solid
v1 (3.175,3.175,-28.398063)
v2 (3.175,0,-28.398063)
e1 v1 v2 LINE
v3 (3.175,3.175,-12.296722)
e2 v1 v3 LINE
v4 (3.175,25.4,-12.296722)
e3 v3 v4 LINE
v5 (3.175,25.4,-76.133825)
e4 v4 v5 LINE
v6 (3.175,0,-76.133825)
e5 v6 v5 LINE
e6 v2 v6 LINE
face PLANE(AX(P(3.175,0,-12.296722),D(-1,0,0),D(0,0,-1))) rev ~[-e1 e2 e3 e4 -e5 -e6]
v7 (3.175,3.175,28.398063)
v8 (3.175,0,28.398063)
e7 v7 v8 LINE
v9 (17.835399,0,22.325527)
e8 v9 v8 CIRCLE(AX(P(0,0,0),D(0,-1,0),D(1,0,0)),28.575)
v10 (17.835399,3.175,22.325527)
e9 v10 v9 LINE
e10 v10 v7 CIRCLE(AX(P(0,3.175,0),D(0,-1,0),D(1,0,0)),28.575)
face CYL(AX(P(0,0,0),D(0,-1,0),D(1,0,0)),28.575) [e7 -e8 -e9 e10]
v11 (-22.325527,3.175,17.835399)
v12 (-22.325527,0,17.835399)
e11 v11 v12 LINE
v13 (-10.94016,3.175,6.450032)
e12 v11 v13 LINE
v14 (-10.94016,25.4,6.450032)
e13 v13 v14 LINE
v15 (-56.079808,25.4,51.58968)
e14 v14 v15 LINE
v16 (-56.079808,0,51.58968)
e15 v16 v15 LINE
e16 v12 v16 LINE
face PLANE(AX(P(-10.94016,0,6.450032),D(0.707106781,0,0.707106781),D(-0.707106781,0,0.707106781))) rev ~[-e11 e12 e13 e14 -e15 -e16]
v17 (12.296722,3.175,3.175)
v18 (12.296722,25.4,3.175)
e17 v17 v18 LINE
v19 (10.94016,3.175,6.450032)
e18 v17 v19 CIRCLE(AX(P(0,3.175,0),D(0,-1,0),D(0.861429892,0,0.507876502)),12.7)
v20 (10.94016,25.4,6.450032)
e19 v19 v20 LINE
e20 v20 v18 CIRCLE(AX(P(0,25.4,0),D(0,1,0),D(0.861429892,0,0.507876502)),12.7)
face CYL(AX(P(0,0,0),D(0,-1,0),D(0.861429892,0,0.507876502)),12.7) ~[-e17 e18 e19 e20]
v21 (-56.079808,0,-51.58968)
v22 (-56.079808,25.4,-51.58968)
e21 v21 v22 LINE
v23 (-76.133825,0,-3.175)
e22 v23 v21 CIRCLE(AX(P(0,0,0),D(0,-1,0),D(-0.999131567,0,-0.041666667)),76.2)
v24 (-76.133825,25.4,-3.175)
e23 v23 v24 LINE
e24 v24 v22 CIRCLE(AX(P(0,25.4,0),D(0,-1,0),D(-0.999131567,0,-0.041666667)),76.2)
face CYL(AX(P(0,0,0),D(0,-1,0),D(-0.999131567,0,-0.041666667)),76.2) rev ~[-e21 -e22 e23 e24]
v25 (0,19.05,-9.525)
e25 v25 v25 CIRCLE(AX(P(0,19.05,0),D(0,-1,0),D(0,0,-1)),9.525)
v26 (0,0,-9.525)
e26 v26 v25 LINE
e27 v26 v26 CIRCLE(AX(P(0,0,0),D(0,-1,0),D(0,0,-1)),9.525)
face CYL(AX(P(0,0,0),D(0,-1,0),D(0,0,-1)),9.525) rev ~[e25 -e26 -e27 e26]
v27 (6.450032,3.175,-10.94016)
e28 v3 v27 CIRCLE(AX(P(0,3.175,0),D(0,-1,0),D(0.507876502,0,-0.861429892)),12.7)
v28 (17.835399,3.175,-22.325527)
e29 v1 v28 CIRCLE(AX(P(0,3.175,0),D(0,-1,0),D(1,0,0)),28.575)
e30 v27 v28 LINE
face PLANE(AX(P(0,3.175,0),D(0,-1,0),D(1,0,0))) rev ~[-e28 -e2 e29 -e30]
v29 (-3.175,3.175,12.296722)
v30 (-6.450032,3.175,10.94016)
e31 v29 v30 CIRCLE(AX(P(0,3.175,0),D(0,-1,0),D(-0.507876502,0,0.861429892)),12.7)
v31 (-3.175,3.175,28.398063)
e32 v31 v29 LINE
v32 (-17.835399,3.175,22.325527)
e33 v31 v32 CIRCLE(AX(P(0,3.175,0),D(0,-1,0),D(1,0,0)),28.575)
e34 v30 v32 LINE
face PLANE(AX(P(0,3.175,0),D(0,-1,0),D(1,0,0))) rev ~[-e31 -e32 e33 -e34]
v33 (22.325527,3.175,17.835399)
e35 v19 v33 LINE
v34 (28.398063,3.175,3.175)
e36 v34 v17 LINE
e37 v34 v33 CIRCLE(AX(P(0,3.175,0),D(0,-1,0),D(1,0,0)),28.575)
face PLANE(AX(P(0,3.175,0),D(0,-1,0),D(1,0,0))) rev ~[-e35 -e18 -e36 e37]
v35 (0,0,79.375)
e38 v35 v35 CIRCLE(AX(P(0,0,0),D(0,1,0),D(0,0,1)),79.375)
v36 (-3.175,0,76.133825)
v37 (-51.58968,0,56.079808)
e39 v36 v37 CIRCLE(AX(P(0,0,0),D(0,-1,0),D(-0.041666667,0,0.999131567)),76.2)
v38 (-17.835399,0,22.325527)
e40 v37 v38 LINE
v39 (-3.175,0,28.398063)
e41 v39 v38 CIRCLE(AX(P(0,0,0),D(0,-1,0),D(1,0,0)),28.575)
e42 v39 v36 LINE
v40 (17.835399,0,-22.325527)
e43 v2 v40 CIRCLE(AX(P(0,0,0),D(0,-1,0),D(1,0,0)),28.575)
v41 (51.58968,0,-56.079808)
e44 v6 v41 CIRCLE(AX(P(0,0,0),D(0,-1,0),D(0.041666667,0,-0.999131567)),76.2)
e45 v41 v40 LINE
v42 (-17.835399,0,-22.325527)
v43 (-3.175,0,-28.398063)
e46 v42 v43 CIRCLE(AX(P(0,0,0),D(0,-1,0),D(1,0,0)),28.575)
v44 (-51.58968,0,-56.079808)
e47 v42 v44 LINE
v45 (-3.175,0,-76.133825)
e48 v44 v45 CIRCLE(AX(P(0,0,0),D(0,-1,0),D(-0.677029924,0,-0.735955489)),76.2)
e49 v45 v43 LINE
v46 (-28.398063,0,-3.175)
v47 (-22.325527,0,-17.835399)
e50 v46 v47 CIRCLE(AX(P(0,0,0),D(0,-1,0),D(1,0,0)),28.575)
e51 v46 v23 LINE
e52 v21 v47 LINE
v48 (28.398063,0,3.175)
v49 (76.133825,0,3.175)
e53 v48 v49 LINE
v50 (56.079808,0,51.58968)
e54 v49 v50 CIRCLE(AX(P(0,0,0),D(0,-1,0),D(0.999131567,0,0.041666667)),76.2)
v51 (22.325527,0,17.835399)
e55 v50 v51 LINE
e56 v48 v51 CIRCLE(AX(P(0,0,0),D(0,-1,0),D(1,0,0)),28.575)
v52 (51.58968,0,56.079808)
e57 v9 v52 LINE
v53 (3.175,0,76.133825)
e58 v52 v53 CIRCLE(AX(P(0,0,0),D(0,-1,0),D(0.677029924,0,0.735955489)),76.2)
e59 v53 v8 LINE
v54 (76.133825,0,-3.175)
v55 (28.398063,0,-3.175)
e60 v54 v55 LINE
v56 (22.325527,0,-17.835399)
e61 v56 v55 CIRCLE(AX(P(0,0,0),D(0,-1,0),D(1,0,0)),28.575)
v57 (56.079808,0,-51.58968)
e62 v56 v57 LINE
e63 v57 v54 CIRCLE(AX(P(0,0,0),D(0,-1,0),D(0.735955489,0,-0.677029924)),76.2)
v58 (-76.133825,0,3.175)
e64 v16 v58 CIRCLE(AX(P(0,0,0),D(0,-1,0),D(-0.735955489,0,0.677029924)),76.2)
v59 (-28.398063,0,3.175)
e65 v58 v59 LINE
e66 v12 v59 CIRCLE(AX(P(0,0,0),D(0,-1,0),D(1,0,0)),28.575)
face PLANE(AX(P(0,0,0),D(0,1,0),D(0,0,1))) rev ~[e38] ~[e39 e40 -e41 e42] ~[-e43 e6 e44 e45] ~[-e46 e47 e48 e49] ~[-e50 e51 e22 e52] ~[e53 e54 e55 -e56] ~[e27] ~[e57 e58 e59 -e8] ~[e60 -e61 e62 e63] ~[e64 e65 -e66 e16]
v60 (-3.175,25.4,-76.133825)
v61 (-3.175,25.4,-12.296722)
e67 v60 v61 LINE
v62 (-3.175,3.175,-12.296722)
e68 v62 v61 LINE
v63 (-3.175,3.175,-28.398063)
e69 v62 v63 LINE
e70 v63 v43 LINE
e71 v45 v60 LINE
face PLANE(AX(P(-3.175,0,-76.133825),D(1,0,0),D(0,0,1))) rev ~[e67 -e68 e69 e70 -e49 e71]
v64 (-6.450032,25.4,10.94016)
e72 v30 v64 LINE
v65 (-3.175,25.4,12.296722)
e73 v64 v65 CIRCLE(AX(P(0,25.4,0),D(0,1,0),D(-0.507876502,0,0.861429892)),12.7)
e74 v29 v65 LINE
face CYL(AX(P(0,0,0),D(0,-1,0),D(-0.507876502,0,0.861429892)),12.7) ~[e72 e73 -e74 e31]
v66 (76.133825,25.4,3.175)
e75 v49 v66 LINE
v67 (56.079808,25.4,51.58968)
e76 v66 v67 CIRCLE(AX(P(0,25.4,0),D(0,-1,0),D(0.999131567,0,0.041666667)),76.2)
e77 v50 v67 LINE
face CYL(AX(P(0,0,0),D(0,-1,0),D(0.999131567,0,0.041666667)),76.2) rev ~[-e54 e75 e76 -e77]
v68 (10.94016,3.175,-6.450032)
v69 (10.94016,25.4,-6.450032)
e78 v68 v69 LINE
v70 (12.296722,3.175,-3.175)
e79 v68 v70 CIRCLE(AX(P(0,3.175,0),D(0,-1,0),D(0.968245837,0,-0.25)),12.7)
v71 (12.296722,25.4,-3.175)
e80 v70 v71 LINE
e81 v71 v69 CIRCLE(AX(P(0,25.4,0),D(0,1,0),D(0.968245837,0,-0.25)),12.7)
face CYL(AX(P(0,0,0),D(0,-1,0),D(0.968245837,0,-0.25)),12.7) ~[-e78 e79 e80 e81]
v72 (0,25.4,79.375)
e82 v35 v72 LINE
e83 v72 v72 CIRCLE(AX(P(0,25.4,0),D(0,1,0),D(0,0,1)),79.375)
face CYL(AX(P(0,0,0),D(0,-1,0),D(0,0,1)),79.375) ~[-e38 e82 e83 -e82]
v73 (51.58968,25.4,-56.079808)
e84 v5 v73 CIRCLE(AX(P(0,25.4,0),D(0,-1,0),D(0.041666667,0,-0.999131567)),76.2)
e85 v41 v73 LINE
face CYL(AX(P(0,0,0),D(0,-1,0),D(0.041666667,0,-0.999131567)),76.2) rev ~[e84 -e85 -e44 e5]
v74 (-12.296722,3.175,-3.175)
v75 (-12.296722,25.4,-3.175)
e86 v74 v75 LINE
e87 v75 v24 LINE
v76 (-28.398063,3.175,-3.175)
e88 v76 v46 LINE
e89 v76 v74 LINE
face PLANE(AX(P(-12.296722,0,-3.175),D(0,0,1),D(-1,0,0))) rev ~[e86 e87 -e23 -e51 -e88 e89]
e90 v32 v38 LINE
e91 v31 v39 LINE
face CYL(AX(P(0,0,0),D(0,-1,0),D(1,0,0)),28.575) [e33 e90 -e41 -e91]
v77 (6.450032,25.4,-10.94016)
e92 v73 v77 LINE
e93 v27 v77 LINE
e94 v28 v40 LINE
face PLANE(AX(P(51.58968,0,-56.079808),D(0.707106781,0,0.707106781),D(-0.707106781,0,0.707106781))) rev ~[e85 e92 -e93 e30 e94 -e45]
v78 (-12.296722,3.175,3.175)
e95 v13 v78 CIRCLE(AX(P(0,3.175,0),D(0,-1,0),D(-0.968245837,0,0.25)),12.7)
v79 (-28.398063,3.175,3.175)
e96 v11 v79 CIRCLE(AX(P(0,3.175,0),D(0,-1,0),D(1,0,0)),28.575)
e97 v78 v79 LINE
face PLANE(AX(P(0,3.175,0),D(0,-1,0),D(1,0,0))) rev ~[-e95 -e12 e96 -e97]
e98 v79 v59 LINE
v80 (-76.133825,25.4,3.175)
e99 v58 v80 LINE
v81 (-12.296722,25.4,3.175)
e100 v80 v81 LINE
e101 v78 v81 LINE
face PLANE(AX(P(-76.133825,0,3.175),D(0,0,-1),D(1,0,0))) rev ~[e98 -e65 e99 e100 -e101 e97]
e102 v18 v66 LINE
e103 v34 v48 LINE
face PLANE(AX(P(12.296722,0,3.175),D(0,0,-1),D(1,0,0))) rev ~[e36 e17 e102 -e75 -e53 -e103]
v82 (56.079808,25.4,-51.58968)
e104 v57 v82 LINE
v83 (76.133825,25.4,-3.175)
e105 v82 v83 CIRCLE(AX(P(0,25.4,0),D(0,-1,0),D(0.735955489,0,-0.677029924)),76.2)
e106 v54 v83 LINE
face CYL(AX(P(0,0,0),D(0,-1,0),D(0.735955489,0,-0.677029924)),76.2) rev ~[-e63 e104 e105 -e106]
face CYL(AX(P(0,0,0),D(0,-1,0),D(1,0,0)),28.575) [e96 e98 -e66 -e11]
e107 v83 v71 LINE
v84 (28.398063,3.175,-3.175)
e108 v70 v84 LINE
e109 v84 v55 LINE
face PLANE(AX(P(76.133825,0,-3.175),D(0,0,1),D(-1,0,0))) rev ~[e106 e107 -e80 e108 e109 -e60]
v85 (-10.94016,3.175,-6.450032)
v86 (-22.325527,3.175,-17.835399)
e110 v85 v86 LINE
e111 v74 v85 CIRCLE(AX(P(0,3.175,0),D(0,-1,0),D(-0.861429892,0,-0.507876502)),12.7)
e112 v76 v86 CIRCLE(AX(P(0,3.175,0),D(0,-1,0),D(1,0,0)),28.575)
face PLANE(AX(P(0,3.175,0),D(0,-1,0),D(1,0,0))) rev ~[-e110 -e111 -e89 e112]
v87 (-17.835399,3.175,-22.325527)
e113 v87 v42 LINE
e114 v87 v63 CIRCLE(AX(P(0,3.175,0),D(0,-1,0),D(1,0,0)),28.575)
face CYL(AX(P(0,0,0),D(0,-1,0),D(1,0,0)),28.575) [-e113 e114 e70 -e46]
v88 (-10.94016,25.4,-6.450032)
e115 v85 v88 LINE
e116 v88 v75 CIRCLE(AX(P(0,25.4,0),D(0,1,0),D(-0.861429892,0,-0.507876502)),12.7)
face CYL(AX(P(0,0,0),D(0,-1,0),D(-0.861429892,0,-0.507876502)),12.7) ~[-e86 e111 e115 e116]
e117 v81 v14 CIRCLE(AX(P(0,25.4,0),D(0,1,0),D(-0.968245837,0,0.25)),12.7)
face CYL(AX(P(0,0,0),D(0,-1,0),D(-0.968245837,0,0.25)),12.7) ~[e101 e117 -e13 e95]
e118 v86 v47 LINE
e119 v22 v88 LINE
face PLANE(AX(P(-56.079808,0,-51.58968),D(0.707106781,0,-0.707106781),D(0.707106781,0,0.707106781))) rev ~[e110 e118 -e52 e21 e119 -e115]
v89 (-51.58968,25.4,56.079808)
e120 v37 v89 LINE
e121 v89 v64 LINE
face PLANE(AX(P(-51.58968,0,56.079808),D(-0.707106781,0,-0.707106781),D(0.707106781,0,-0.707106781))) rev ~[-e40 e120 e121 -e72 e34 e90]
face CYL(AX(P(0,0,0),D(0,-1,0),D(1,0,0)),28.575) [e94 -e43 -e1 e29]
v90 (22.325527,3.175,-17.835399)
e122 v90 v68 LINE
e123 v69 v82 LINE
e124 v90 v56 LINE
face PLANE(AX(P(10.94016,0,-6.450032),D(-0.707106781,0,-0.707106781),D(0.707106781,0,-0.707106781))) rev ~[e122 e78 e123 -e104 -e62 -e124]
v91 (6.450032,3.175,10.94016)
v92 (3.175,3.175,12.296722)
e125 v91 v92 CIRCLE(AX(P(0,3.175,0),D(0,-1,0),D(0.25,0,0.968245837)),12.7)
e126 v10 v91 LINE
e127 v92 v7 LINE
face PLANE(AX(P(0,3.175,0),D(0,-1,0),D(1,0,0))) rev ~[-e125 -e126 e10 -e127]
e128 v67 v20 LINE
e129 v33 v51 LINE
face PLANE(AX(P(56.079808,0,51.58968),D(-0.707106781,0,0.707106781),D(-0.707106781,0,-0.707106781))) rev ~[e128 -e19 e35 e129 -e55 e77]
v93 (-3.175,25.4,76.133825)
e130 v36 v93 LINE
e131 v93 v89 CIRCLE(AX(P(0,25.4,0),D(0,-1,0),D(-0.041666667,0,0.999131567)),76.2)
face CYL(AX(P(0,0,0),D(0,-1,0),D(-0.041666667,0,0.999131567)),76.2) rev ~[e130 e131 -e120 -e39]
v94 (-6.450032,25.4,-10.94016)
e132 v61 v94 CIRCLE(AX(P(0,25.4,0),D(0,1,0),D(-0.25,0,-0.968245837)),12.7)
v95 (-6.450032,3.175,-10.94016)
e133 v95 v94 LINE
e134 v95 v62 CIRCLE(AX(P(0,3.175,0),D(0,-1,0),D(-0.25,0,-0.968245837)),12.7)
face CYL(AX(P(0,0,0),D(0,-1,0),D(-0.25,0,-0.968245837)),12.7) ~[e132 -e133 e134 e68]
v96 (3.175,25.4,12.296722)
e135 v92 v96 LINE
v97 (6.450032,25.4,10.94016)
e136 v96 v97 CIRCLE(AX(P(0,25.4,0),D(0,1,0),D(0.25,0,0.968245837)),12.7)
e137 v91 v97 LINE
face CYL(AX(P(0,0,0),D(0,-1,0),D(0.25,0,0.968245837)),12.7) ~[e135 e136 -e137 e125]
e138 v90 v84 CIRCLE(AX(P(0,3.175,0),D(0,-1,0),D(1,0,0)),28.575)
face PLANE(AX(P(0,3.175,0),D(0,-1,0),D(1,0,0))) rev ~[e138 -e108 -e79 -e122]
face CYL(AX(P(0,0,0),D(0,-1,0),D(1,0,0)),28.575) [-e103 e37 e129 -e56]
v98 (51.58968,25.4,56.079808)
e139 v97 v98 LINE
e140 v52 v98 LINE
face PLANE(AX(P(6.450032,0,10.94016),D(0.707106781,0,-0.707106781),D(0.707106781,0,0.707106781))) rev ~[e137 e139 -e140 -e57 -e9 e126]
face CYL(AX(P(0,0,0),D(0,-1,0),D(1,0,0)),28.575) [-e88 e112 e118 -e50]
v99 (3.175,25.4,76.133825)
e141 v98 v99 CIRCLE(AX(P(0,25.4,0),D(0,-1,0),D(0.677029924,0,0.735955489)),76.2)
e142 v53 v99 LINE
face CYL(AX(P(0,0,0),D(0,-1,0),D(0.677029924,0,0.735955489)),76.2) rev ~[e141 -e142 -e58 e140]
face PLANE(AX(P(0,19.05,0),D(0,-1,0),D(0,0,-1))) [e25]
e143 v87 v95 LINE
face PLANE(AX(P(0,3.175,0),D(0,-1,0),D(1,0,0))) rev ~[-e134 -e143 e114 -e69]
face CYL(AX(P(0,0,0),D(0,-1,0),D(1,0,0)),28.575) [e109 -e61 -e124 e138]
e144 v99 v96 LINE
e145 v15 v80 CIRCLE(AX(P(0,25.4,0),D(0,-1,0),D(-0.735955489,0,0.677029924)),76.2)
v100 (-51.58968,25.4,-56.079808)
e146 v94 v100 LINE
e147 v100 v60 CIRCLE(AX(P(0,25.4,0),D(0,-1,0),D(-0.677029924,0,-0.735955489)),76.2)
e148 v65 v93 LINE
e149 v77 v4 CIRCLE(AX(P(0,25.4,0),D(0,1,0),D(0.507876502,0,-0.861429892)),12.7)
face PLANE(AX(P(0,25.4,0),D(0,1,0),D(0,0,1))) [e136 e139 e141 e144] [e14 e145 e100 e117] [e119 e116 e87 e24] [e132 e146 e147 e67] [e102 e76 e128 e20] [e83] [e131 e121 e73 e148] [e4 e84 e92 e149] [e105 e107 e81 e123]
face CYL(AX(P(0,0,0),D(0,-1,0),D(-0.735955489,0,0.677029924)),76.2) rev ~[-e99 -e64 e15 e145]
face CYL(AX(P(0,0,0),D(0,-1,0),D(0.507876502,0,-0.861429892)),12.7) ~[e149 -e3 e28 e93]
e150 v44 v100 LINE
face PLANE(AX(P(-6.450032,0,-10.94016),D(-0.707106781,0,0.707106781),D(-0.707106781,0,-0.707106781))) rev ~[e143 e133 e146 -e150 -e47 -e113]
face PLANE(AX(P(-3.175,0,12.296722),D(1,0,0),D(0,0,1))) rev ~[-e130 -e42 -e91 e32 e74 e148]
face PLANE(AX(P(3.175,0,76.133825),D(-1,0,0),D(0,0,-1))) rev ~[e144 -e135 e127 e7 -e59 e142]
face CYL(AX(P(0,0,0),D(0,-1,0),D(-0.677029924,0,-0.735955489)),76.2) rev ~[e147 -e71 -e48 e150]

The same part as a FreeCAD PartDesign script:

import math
import FreeCAD as App
import Part
import Sketcher
from FreeCAD import Vector
Q = App.Units.Quantity

doc = App.newDocument("Part")
body = doc.addObject("PartDesign::Body", "Body")

sketch1 = body.newObject("Sketcher::SketchObject", "Sketch")
sketch1.AttachmentSupport = (doc.getObject("XZ_Plane"), [""])
sketch1.MapMode = "FlatFace"
sketch1.addGeometry([
    Part.Circle(Vector(0, 0, 0), Vector(0, 0, 1), 79.4),
    Part.ArcOfCircle(Part.Circle(Vector(0, 0, 0), Vector(0, 0, 1), 76.2), math.radians(-178), math.radians(-137)),
    Part.LineSegment(Vector(-56.1, -51.6, 0), Vector(-10.9, -6.5, 0)),
    Part.ArcOfCircle(Part.Circle(Vector(0, 0, 0), Vector(0, 0, 1), 12.7), math.radians(-165.52), math.radians(-149.48)),
    Part.LineSegment(Vector(-12.3, -3.2, 0), Vector(-76.1, -3.2, 0)),
    Part.ArcOfCircle(Part.Circle(Vector(0, 0, 0), Vector(0, 0, 1), 76.2), math.radians(-133), math.radians(-92)),
    Part.LineSegment(Vector(-3.2, -76.1, 0), Vector(-3.2, -12.3, 0)),
    Part.ArcOfCircle(Part.Circle(Vector(0, 0, 0), Vector(0, 0, 1), 12.7), math.radians(-120.52), math.radians(-104.48)),
    Part.LineSegment(Vector(-6.5, -10.9, 0), Vector(-51.6, -56.1, 0)),
    Part.ArcOfCircle(Part.Circle(Vector(0, 0, 0), Vector(0, 0, 1), 76.2), math.radians(137), math.radians(178)),
    Part.LineSegment(Vector(-76.1, 3.2, 0), Vector(-12.3, 3.2, 0)),
    Part.ArcOfCircle(Part.Circle(Vector(0, 0, 0), Vector(0, 0, 1), 12.7), math.radians(149.48), math.radians(165.52)),
    Part.LineSegment(Vector(-10.9, 6.5, 0), Vector(-56.1, 51.6, 0)),
    Part.ArcOfCircle(Part.Circle(Vector(0, 0, 0), Vector(0, 0, 1), 76.2), math.radians(92), math.radians(133)),
    Part.LineSegment(Vector(-51.6, 56.1, 0), Vector(-6.5, 10.9, 0)),
    Part.ArcOfCircle(Part.Circle(Vector(0, 0, 0), Vector(0, 0, 1), 12.7), math.radians(104.48), math.radians(120.52)),
    Part.LineSegment(Vector(-3.2, 12.3, 0), Vector(-3.2, 76.1, 0)),
    Part.ArcOfCircle(Part.Circle(Vector(0, 0, 0), Vector(0, 0, 1), 76.2), math.radians(-88), math.radians(-47)),
    Part.LineSegment(Vector(51.6, -56.1, 0), Vector(6.5, -10.9, 0)),
    Part.ArcOfCircle(Part.Circle(Vector(0, 0, 0), Vector(0, 0, 1), 12.7), math.radians(-75.52), math.radians(-59.48)),
    Part.LineSegment(Vector(3.2, -12.3, 0), Vector(3.2, -76.1, 0)),
    Part.LineSegment(Vector(76.1, -3.2, 0), Vector(12.3, -3.2, 0)),
    Part.ArcOfCircle(Part.Circle(Vector(0, 0, 0), Vector(0, 0, 1), 12.7), math.radians(-30.52), math.radians(-14.48)),
    Part.LineSegment(Vector(10.9, -6.5, 0), Vector(56.1, -51.6, 0)),
    Part.ArcOfCircle(Part.Circle(Vector(0, 0, 0), Vector(0, 0, 1), 76.2), math.radians(-43), math.radians(-2)),
    Part.ArcOfCircle(Part.Circle(Vector(0, 0, 0), Vector(0, 0, 1), 76.2), math.radians(47), math.radians(88)),
    Part.LineSegment(Vector(3.2, 76.1, 0), Vector(3.2, 12.3, 0)),
    Part.ArcOfCircle(Part.Circle(Vector(0, 0, 0), Vector(0, 0, 1), 12.7), math.radians(59.48), math.radians(75.52)),
    Part.LineSegment(Vector(6.5, 10.9, 0), Vector(51.6, 56.1, 0)),
    Part.ArcOfCircle(Part.Circle(Vector(0, 0, 0), Vector(0, 0, 1), 76.2), math.radians(2), math.radians(43)),
    Part.LineSegment(Vector(56.1, 51.6, 0), Vector(10.9, 6.5, 0)),
    Part.ArcOfCircle(Part.Circle(Vector(0, 0, 0), Vector(0, 0, 1), 12.7), math.radians(14.48), math.radians(30.52)),
    Part.LineSegment(Vector(12.3, 3.2, 0), Vector(76.1, 3.2, 0)),
], False)
sketch1.addConstraint([
    Sketcher.Constraint("Coincident", 1, 2, 2, 1),
    Sketcher.Constraint("Coincident", 2, 2, 3, 2),
    Sketcher.Constraint("Coincident", 3, 1, 4, 1),
    Sketcher.Constraint("Coincident", 4, 2, 1, 1),
    Sketcher.Constraint("Coincident", 5, 2, 6, 1),
    Sketcher.Constraint("Coincident", 6, 2, 7, 2),
    Sketcher.Constraint("Coincident", 7, 1, 8, 1),
    Sketcher.Constraint("Coincident", 8, 2, 5, 1),
    Sketcher.Constraint("Coincident", 9, 2, 10, 1),
    Sketcher.Constraint("Coincident", 10, 2, 11, 2),
    Sketcher.Constraint("Coincident", 11, 1, 12, 1),
    Sketcher.Constraint("Coincident", 12, 2, 9, 1),
    Sketcher.Constraint("Coincident", 13, 2, 14, 1),
    Sketcher.Constraint("Coincident", 14, 2, 15, 2),
    Sketcher.Constraint("Coincident", 15, 1, 16, 1),
    Sketcher.Constraint("Coincident", 16, 2, 13, 1),
    Sketcher.Constraint("Coincident", 17, 2, 18, 1),
    Sketcher.Constraint("Coincident", 18, 2, 19, 2),
    Sketcher.Constraint("Coincident", 19, 1, 20, 1),
    Sketcher.Constraint("Coincident", 20, 2, 17, 1),
    Sketcher.Constraint("Coincident", 21, 2, 22, 2),
    Sketcher.Constraint("Coincident", 22, 1, 23, 1),
    Sketcher.Constraint("Coincident", 23, 2, 24, 1),
    Sketcher.Constraint("Coincident", 24, 2, 21, 1),
    Sketcher.Constraint("Coincident", 25, 2, 26, 1),
    Sketcher.Constraint("Coincident", 26, 2, 27, 2),
    Sketcher.Constraint("Coincident", 27, 1, 28, 1),
    Sketcher.Constraint("Coincident", 28, 2, 25, 1),
    Sketcher.Constraint("Coincident", 29, 2, 30, 1),
    Sketcher.Constraint("Coincident", 30, 2, 31, 2),
    Sketcher.Constraint("Coincident", 31, 1, 32, 1),
    Sketcher.Constraint("Coincident", 32, 2, 29, 1),
    Sketcher.Constraint("Horizontal", 4),
    Sketcher.Constraint("Vertical", 6),
    Sketcher.Constraint("Horizontal", 10),
    Sketcher.Constraint("Vertical", 16),
    Sketcher.Constraint("Vertical", 20),
    Sketcher.Constraint("Horizontal", 21),
    Sketcher.Constraint("Vertical", 26),
    Sketcher.Constraint("Horizontal", 32),
    Sketcher.Constraint("Coincident", 0, 3, -1, 1),
    Sketcher.Constraint("Coincident", 1, 3, -1, 1),
    Sketcher.Constraint("Coincident", 3, 3, -1, 1),
    Sketcher.Constraint("Coincident", 5, 3, -1, 1),
    Sketcher.Constraint("Coincident", 7, 3, -1, 1),
    Sketcher.Constraint("Coincident", 9, 3, -1, 1),
    Sketcher.Constraint("Coincident", 11, 3, -1, 1),
    Sketcher.Constraint("Coincident", 13, 3, -1, 1),
    Sketcher.Constraint("Coincident", 15, 3, -1, 1),
    Sketcher.Constraint("Coincident", 17, 3, -1, 1),
    Sketcher.Constraint("Coincident", 19, 3, -1, 1),
    Sketcher.Constraint("Coincident", 22, 3, -1, 1),
    Sketcher.Constraint("Coincident", 24, 3, -1, 1),
    Sketcher.Constraint("Coincident", 25, 3, -1, 1),
    Sketcher.Constraint("Coincident", 27, 3, -1, 1),
    Sketcher.Constraint("Coincident", 29, 3, -1, 1),
    Sketcher.Constraint("Coincident", 31, 3, -1, 1),
    Sketcher.Constraint("Equal", 1, 5),
    Sketcher.Constraint("Equal", 3, 7),
    Sketcher.Constraint("Equal", 5, 9),
    Sketcher.Constraint("Equal", 7, 11),
    Sketcher.Constraint("Equal", 9, 13),
    Sketcher.Constraint("Equal", 11, 15),
    Sketcher.Constraint("Equal", 13, 17),
    Sketcher.Constraint("Equal", 15, 19),
    Sketcher.Constraint("Equal", 19, 22),
    Sketcher.Constraint("Equal", 17, 24),
    Sketcher.Constraint("Equal", 24, 25),
    Sketcher.Constraint("Equal", 22, 27),
    Sketcher.Constraint("Equal", 25, 29),
    Sketcher.Constraint("Equal", 27, 31),
    Sketcher.Constraint("Parallel", 2, 8),
    Sketcher.Constraint("Perpendicular", 8, 12),
    Sketcher.Constraint("Parallel", 12, 14),
    Sketcher.Constraint("Parallel", 14, 18),
    Sketcher.Constraint("Parallel", 18, 23),
    Sketcher.Constraint("Perpendicular", 23, 28),
    Sketcher.Constraint("Parallel", 28, 30),
    Sketcher.Constraint("Horizontal", 8, 2, 17, 2),
    Sketcher.Constraint("Horizontal", 7, 1, 18, 2),
    Sketcher.Constraint("Horizontal", 6, 2, 19, 1),
    Sketcher.Constraint("Horizontal", 4, 2, 21, 2),
    Sketcher.Constraint("Horizontal", 2, 2, 22, 1),
    Sketcher.Constraint("Horizontal", 16, 2, 25, 2),
    Sketcher.Constraint("Horizontal", 14, 2, 27, 1),
    Sketcher.Constraint("Horizontal", 12, 2, 29, 2),
    Sketcher.Constraint("Horizontal", 10, 2, 31, 1),
    Sketcher.Constraint("Vertical", 4, 2, 9, 2),
    Sketcher.Constraint("Vertical", 2, 2, 11, 1),
    Sketcher.Constraint("Vertical", 8, 2, 13, 2),
    Sketcher.Constraint("Vertical", 6, 2, 15, 1),
    Sketcher.Constraint("Equal", 32, 6),
    Sketcher.Constraint("Equal", 2, 8),
    Sketcher.Constraint("Radius", 1, Q("3 in")),
    Sketcher.Constraint("Radius", 3, Q("0.5 in")),
    Sketcher.Constraint("Diameter", 0, Q("6.25 in")),
    Sketcher.Constraint("DistanceY", 4, 2, 9, 2, Q("0.25 in")),
    Sketcher.Constraint("DistanceX", 1, 2, -1, 1, Q("56.079808 mm")),
])
pad1 = body.newObject("PartDesign::Pad", "Pad")
pad1.Profile = sketch1
pad1.Length = Q("1 in")
pad1.Reversed = True

sketch2 = body.newObject("Sketcher::SketchObject", "Sketch001")
sketch2.AttachmentSupport = (doc.getObject("XZ_Plane"), [""])
sketch2.MapMode = "FlatFace"
sketch2.addGeometry(Part.Circle(Vector(0, 0, 0), Vector(0, 0, 1), 29), False)
sketch2.addConstraint([
    Sketcher.Constraint("Coincident", 0, 3, -1, 1),
    Sketcher.Constraint("Diameter", 0, Q("2.25 in")),
])
pad2 = body.newObject("PartDesign::Pad", "Pad001")
pad2.Profile = sketch2
pad2.Length = Q("0.125 in")
pad2.Reversed = True

sketch3 = body.newObject("Sketcher::SketchObject", "Sketch002")
sketch3.AttachmentSupport = (doc.getObject("XZ_Plane"), [""])
sketch3.MapMode = "FlatFace"
sketch3.addGeometry(Part.Circle(Vector(0, 0, 0), Vector(0, 0, 1), 10), False)
sketch3.addConstraint([
    Sketcher.Constraint("Coincident", 0, 3, -1, 1),
    Sketcher.Constraint("Diameter", 0, Q("0.75 in")),
])
pocket1 = body.newObject("PartDesign::Pocket", "Pocket")
pocket1.Profile = sketch3
pocket1.Length = Q("0.75 in")

doc.recompute()
